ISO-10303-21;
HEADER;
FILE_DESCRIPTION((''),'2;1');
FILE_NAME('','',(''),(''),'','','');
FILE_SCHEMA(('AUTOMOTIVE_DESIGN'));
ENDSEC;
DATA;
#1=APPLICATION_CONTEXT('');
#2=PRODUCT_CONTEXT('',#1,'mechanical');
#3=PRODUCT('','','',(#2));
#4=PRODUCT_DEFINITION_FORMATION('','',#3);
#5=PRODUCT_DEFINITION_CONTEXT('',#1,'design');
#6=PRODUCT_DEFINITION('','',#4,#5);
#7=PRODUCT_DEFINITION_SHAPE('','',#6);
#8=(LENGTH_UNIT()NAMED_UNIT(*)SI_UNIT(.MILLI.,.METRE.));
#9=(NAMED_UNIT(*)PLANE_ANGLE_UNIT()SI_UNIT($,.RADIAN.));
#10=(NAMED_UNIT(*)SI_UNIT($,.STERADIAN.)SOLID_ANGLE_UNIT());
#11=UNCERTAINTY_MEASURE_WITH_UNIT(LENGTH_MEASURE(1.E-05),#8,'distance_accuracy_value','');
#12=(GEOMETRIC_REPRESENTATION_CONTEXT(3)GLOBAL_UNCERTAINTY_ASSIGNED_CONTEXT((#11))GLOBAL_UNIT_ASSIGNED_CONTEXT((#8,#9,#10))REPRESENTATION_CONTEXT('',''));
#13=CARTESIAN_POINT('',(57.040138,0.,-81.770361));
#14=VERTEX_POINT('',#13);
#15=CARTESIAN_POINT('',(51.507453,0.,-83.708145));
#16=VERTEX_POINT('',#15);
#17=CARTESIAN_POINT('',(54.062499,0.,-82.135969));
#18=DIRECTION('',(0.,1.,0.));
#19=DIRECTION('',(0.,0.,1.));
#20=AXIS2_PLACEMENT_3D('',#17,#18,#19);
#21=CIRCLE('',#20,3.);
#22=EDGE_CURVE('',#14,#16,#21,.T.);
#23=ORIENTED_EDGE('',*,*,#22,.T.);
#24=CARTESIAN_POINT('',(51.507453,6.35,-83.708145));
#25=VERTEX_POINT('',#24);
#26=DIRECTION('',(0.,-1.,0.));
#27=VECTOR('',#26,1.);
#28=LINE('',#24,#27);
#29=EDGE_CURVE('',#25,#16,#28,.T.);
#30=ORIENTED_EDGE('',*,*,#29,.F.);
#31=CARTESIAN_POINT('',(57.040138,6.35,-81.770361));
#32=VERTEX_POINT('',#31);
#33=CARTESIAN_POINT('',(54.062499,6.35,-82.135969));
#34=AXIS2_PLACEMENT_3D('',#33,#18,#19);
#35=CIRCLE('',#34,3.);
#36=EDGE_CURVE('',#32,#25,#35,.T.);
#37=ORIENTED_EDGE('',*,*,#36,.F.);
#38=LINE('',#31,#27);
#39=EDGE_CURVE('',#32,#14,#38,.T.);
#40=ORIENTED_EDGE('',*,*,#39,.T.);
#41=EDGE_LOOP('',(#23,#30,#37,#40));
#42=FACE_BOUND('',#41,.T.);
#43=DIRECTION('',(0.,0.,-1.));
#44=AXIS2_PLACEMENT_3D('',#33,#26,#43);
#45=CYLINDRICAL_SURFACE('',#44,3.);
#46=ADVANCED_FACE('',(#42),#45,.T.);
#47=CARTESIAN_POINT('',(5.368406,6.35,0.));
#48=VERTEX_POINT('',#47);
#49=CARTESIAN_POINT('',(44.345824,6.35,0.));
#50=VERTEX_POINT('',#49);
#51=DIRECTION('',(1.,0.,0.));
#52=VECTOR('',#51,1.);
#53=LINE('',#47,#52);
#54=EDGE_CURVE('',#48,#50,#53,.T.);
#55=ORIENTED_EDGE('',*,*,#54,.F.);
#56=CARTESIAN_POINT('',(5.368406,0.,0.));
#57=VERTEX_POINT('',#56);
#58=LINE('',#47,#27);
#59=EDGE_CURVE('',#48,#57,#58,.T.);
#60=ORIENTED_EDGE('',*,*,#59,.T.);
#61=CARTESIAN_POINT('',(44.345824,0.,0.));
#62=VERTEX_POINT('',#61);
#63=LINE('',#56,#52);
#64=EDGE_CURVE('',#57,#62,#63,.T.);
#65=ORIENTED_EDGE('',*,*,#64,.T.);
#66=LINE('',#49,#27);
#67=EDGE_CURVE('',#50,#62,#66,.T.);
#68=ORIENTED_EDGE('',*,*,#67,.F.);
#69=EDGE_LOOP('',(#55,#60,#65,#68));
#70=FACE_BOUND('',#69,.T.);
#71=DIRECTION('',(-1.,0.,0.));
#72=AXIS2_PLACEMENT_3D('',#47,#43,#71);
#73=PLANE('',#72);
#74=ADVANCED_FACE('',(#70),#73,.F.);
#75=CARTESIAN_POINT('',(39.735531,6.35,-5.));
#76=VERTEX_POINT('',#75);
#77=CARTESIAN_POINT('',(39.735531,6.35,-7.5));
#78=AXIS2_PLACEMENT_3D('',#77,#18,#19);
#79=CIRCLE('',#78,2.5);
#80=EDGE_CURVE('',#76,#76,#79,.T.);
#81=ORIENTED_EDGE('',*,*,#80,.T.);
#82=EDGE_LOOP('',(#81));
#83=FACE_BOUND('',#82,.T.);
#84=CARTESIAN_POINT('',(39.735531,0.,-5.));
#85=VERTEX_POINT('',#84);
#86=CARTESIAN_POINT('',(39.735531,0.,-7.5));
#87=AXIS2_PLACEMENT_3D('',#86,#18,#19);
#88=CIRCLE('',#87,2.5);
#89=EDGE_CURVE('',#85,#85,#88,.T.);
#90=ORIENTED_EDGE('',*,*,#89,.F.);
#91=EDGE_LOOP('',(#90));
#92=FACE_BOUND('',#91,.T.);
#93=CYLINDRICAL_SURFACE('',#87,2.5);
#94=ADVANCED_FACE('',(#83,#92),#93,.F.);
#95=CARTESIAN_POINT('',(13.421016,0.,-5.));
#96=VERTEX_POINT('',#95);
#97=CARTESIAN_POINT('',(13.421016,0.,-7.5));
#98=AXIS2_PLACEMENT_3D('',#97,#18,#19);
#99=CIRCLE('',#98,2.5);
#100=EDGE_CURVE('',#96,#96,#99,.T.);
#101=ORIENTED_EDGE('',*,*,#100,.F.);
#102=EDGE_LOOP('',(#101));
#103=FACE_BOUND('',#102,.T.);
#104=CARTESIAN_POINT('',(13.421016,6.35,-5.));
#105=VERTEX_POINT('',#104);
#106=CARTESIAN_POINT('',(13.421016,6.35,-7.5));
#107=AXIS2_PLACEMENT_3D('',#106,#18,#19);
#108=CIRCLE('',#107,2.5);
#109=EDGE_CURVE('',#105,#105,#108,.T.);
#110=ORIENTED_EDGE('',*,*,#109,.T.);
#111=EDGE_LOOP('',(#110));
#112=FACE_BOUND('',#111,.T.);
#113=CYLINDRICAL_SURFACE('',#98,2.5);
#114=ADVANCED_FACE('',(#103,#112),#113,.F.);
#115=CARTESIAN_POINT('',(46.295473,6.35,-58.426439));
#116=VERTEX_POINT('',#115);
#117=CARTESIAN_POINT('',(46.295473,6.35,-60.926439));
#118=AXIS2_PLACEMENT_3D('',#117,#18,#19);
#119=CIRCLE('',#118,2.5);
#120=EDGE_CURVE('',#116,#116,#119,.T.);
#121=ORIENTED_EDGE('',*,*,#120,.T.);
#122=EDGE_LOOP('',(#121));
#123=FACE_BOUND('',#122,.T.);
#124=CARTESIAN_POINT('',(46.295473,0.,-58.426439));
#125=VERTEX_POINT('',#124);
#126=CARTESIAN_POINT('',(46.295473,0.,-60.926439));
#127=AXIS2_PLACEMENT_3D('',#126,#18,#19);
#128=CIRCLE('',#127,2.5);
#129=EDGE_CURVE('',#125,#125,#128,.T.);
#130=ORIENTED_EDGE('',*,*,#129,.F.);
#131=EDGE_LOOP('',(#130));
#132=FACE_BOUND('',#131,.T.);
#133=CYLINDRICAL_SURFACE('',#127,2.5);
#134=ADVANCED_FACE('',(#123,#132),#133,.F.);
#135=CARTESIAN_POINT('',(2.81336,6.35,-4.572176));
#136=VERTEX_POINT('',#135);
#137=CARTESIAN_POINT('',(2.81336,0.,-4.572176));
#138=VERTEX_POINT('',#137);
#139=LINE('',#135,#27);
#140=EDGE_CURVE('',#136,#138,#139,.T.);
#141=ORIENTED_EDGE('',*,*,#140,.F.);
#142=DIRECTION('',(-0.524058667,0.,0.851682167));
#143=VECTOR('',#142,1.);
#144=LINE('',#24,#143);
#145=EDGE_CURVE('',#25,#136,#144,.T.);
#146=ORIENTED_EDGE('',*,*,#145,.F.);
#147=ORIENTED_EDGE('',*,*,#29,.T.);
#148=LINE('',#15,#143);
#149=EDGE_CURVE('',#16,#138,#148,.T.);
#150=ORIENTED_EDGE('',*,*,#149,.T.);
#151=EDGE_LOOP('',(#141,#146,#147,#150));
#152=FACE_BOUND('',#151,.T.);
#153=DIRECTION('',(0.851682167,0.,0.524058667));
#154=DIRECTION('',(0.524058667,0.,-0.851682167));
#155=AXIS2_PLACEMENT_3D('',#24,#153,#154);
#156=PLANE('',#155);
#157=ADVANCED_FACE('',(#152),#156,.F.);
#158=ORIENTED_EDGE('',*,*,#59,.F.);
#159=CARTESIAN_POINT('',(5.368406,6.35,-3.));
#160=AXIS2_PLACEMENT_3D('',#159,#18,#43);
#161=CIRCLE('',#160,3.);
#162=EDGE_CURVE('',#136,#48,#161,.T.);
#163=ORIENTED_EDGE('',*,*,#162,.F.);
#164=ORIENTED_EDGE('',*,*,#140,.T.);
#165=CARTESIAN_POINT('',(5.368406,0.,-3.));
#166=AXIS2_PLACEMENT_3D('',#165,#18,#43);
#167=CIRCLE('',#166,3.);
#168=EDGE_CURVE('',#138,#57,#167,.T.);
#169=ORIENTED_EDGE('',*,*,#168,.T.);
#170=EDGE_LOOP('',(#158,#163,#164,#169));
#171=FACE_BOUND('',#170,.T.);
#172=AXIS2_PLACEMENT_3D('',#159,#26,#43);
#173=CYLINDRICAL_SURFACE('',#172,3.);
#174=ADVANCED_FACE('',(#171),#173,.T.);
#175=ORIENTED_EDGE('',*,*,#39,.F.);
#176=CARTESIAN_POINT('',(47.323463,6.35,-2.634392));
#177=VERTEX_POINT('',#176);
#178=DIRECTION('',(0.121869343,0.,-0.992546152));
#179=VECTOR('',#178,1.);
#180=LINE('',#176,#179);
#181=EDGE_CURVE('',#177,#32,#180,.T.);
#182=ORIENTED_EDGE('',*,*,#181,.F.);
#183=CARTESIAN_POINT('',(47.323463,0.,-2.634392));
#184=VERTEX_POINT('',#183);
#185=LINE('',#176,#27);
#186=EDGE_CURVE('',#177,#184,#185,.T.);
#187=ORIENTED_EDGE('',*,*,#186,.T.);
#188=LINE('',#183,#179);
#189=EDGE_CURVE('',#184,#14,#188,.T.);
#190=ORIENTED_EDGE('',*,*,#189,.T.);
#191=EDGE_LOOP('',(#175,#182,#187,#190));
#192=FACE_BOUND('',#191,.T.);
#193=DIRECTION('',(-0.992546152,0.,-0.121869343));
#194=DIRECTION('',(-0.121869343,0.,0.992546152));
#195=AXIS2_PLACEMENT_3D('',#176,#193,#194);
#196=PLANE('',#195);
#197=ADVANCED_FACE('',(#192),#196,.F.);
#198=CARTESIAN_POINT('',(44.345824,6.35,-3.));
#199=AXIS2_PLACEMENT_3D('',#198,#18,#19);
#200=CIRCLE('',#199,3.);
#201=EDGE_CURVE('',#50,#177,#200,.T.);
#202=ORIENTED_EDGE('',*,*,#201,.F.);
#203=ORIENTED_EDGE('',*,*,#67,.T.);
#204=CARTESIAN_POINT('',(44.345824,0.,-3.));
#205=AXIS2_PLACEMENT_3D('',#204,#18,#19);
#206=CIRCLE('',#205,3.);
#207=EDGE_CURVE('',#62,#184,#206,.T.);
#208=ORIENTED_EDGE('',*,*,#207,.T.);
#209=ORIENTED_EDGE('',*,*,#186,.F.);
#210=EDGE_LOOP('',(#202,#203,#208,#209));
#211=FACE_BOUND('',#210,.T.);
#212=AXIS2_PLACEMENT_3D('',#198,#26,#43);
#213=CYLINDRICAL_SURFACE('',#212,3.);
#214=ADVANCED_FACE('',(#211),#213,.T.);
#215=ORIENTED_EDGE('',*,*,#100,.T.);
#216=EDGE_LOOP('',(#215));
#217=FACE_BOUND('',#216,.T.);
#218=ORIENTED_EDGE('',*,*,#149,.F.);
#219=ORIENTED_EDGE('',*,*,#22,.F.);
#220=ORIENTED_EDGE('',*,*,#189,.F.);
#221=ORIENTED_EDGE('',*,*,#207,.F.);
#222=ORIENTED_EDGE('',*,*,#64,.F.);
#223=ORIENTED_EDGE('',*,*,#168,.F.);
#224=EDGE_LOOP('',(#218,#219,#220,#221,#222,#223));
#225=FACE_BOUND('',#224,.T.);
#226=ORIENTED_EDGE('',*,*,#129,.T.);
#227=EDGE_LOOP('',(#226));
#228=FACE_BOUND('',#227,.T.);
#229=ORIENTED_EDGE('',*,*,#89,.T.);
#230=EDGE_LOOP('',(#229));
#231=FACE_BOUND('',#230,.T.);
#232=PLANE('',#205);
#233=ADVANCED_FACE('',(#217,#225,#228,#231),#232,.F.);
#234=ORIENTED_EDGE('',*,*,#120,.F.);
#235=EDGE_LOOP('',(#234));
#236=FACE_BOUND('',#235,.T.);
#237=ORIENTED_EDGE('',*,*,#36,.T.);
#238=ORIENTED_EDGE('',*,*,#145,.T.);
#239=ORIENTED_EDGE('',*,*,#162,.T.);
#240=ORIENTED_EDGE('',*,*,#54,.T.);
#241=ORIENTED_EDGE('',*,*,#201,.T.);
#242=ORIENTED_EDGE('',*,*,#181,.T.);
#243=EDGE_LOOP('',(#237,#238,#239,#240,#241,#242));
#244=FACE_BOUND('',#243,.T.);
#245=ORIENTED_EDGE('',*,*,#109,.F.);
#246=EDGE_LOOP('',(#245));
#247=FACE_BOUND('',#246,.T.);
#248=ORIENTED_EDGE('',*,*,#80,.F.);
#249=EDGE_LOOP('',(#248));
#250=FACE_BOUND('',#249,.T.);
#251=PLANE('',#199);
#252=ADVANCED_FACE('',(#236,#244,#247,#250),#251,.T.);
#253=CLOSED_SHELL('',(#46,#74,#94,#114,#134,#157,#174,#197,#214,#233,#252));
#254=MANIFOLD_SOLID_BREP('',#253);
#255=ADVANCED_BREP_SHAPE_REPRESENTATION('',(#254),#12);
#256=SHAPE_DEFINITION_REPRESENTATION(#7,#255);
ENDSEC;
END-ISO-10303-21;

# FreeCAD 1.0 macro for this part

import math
import FreeCAD as App
import Part
import Sketcher

V = App.Vector
Q = App.Units.Quantity

doc = App.newDocument("Part")
body = doc.addObject("PartDesign::Body", "Body")

sketch1 = body.newObject("Sketcher::SketchObject", "Sketch")
sketch1.AttachmentSupport = (doc.getObject("XZ_Plane"), [""])
sketch1.MapMode = "FlatFace"
sketch1.addGeometry(Part.LineSegment(V(5.4, 0, 0), V(44.3, 0, 0)), False)
sketch1.addGeometry(Part.ArcOfCircle(Part.Circle(V(44.3, -3, 0), V(0, 0, 1), 3), math.radians(7), math.radians(90)), False)
sketch1.addGeometry(Part.LineSegment(V(47.3, -2.6, 0), V(57, -81.8, 0)), False)
sketch1.addGeometry(Part.ArcOfCircle(Part.Circle(V(54.1, -82.1, 0), V(0, 0, 1), 3), math.radians(-148), math.radians(7)), False)
sketch1.addGeometry(Part.LineSegment(V(51.5, -83.7, 0), V(2.8, -4.6, 0)), False)
sketch1.addGeometry(Part.ArcOfCircle(Part.Circle(V(5.4, -3, 0), V(0, 0, 1), 3), math.radians(90), math.radians(212)), False)
sketch1.addConstraint(Sketcher.Constraint("Tangent", 0, 2, 1, 2))
sketch1.addConstraint(Sketcher.Constraint("Tangent", 1, 1, 2, 1))
sketch1.addConstraint(Sketcher.Constraint("Tangent", 2, 2, 3, 2))
sketch1.addConstraint(Sketcher.Constraint("Tangent", 3, 1, 4, 1))
sketch1.addConstraint(Sketcher.Constraint("Tangent", 4, 2, 5, 2))
sketch1.addConstraint(Sketcher.Constraint("Tangent", 5, 1, 0, 1))
sketch1.addConstraint(Sketcher.Constraint("Horizontal", 0))
sketch1.addConstraint(Sketcher.Constraint("Equal", 1, 3))
sketch1.addConstraint(Sketcher.Constraint("Equal", 3, 5))
sketch1.addConstraint(Sketcher.Constraint("PointOnObject", 0, 2, -1))
sketch1.addConstraint(Sketcher.Constraint("Radius", 1, Q("3 mm")))
sketch1.addConstraint(Sketcher.Constraint("Angle", 2, Q("-83 deg")))
sketch1.addConstraint(Sketcher.Constraint("DistanceX", -1, 1, 3, 3, Q("54.062499 mm")))
sketch1.addConstraint(Sketcher.Constraint("DistanceX", 0, 1, 0, 2, Q("38.977418 mm")))
sketch1.addConstraint(Sketcher.Constraint("DistanceY", 3, 3, -1, 1, Q("82.135969 mm")))
pad1 = body.newObject("PartDesign::Pad", "Pad")
pad1.Profile = sketch1
pad1.Length = 6.35
pad1.Reversed = True

sketch2 = body.newObject("Sketcher::SketchObject", "Sketch001")
sketch2.AttachmentSupport = (doc.getObject("XZ_Plane"), [""])
sketch2.MapMode = "FlatFace"
sketch2.AttachmentOffset = App.Placement(V(0, 0, -6.35), App.Rotation())
sketch2.addGeometry(Part.Circle(V(13.4, -7.5, 0), V(0, 0, 1), 2.5), False)
sketch2.addGeometry(Part.Circle(V(46.3, -60.9, 0), V(0, 0, 1), 2.5), False)
sketch2.addGeometry(Part.Circle(V(39.7, -7.5, 0), V(0, 0, 1), 2.5), False)
sketch2.addConstraint(Sketcher.Constraint("Equal", 0, 1))
sketch2.addConstraint(Sketcher.Constraint("Equal", 1, 2))
sketch2.addConstraint(Sketcher.Constraint("Horizontal", 0, 3, 2, 3))
sketch2.addConstraint(Sketcher.Constraint("Diameter", 0, Q("5 mm")))
sketch2.addConstraint(Sketcher.Constraint("DistanceY", 0, 3, -1, 1, Q("7.5 mm")))
sketch2.addConstraint(Sketcher.Constraint("DistanceY", 1, 3, -1, 1, Q("60.926439 mm")))
sketch2.addConstraint(Sketcher.Constraint("DistanceX", -1, 1, 2, 3, Q("39.735531 mm")))
sketch2.addConstraint(Sketcher.Constraint("DistanceX", 2, 3, 1, 3, Q("6.559942 mm")))
sketch2.addConstraint(Sketcher.Constraint("DistanceX", -1, 1, 0, 3, Q("13.421016 mm")))
pocket1 = body.newObject("PartDesign::Pocket", "Pocket")
pocket1.Profile = sketch2
pocket1.Type = "ThroughAll"
pocket1.Reversed = True

doc.recompute()
